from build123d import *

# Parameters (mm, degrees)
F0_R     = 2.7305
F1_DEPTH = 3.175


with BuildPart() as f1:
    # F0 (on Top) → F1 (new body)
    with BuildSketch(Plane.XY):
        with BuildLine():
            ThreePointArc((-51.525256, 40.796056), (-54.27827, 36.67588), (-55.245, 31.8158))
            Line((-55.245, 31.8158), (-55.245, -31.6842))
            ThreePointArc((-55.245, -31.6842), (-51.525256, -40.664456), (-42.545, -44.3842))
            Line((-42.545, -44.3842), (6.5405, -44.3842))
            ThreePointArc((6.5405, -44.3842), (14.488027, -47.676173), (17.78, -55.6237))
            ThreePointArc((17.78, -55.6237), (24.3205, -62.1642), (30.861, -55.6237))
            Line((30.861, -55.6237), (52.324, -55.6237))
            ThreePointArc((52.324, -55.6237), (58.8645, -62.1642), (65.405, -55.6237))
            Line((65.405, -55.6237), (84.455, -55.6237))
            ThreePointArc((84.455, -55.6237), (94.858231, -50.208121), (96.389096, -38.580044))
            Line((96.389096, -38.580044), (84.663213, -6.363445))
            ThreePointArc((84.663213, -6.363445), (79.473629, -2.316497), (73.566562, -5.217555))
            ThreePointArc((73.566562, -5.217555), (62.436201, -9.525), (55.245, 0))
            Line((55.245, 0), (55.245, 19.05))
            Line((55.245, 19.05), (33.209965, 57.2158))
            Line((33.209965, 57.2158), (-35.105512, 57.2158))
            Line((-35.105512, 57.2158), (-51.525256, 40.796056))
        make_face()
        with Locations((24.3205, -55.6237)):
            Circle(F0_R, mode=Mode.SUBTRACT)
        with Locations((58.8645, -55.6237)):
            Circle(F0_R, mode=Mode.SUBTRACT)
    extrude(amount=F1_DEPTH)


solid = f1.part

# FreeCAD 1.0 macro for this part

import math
import FreeCAD as App
import Part
import Sketcher
Q = App.Units.Quantity

doc = App.newDocument("Part")
body = doc.addObject("PartDesign::Body", "Body")

sketch1 = body.newObject("Sketcher::SketchObject", "Sketch")
sketch1.AttachmentSupport = (doc.getObject("XY_Plane"), [""])
sketch1.MapMode = "FlatFace"
sketch1.addGeometry(Part.ArcOfCircle(Part.Circle(App.Vector(-42.5, 31.8, 0), App.Vector(0, 0, 1), 12.7), math.radians(135), math.radians(180)), False)
sketch1.addGeometry(Part.LineSegment(App.Vector(-55.2, 31.8, 0), App.Vector(-55.2, -31.7, 0)), False)
sketch1.addGeometry(Part.ArcOfCircle(Part.Circle(App.Vector(-42.5, -31.7, 0), App.Vector(0, 0, 1), 12.7), math.radians(-180), math.radians(-90)), False)
sketch1.addGeometry(Part.LineSegment(App.Vector(-42.5, -44.4, 0), App.Vector(6.5, -44.4, 0)), False)
sketch1.addGeometry(Part.ArcOfCircle(Part.Circle(App.Vector(6.5, -55.6, 0), App.Vector(0, 0, 1), 11.2), math.radians(0), math.radians(90)), False)
sketch1.addGeometry(Part.ArcOfCircle(Part.Circle(App.Vector(24.3, -55.6, 0), App.Vector(0, 0, 1), 6.5), math.radians(180), math.radians(360)), False)
sketch1.addGeometry(Part.LineSegment(App.Vector(30.9, -55.6, 0), App.Vector(52.3, -55.6, 0)), False)
sketch1.addGeometry(Part.ArcOfCircle(Part.Circle(App.Vector(58.9, -55.6, 0), App.Vector(0, 0, 1), 6.5), math.radians(180), math.radians(360)), False)
sketch1.addGeometry(Part.LineSegment(App.Vector(65.4, -55.6, 0), App.Vector(84.5, -55.6, 0)), False)
sketch1.addGeometry(Part.ArcOfCircle(Part.Circle(App.Vector(84.5, -42.9, 0), App.Vector(0, 0, 1), 12.7), math.radians(-90), math.radians(20)), False)
sketch1.addGeometry(Part.LineSegment(App.Vector(96.4, -38.6, 0), App.Vector(84.7, -6.4, 0)), False)
sketch1.addGeometry(Part.ArcOfCircle(Part.Circle(App.Vector(78.8, -8.5, 0), App.Vector(0, 0, 1), 6.2), math.radians(20), math.radians(148)), False)
sketch1.addGeometry(Part.ArcOfCircle(Part.Circle(App.Vector(65.1, 0, 0), App.Vector(0, 0, 1), 9.9), math.radians(-180), math.radians(-32)), False)
sketch1.addGeometry(Part.LineSegment(App.Vector(55.2, 0, 0), App.Vector(55.2, 19.1, 0)), False)
sketch1.addGeometry(Part.LineSegment(App.Vector(55.2, 19.1, 0), App.Vector(33.2, 57.2, 0)), False)
sketch1.addGeometry(Part.LineSegment(App.Vector(33.2, 57.2, 0), App.Vector(-35.1, 57.2, 0)), False)
sketch1.addGeometry(Part.LineSegment(App.Vector(-35.1, 57.2, 0), App.Vector(-51.5, 40.8, 0)), False)
sketch1.addGeometry(Part.Circle(App.Vector(24.3, -55.6, 0), App.Vector(0, 0, 1), 2.7), False)
sketch1.addGeometry(Part.Circle(App.Vector(58.9, -55.6, 0), App.Vector(0, 0, 1), 2.7), False)
sketch1.addConstraint(Sketcher.Constraint("Tangent", 0, 2, 1, 1))
sketch1.addConstraint(Sketcher.Constraint("Tangent", 1, 2, 2, 1))
sketch1.addConstraint(Sketcher.Constraint("Tangent", 2, 2, 3, 1))
sketch1.addConstraint(Sketcher.Constraint("Tangent", 3, 2, 4, 2))
sketch1.addConstraint(Sketcher.Constraint("Tangent", 4, 1, 5, 1))
sketch1.addConstraint(Sketcher.Constraint("Coincident", 5, 2, 6, 1))
sketch1.addConstraint(Sketcher.Constraint("Coincident", 6, 2, 7, 1))
sketch1.addConstraint(Sketcher.Constraint("Coincident", 7, 2, 8, 1))
sketch1.addConstraint(Sketcher.Constraint("Tangent", 8, 2, 9, 1))
sketch1.addConstraint(Sketcher.Constraint("Tangent", 9, 2, 10, 1))
sketch1.addConstraint(Sketcher.Constraint("Tangent", 10, 2, 11, 1))
sketch1.addConstraint(Sketcher.Constraint("Tangent", 11, 2, 12, 2))
sketch1.addConstraint(Sketcher.Constraint("Tangent", 12, 1, 13, 1))
sketch1.addConstraint(Sketcher.Constraint("Coincident", 13, 2, 14, 1))
sketch1.addConstraint(Sketcher.Constraint("Coincident", 14, 2, 15, 1))
sketch1.addConstraint(Sketcher.Constraint("Coincident", 15, 2, 16, 1))
sketch1.addConstraint(Sketcher.Constraint("Tangent", 16, 2, 0, 1))
sketch1.addConstraint(Sketcher.Constraint("Vertical", 1))
sketch1.addConstraint(Sketcher.Constraint("Horizontal", 3))
sketch1.addConstraint(Sketcher.Constraint("Horizontal", 6))
sketch1.addConstraint(Sketcher.Constraint("Horizontal", 8))
sketch1.addConstraint(Sketcher.Constraint("Vertical", 13))
sketch1.addConstraint(Sketcher.Constraint("Horizontal", 15))
sketch1.addConstraint(Sketcher.Constraint("Coincident", 17, 3, 5, 3))
sketch1.addConstraint(Sketcher.Constraint("Coincident", 18, 3, 7, 3))
sketch1.addConstraint(Sketcher.Constraint("Equal", 5, 7))
sketch1.addConstraint(Sketcher.Constraint("Equal", 2, 9))
sketch1.addConstraint(Sketcher.Constraint("Equal", 17, 18))
sketch1.addConstraint(Sketcher.Constraint("PointOnObject", 12, 3, -1))
sketch1.addConstraint(Sketcher.Constraint("Horizontal", 4, 3, 5, 3))
sketch1.addConstraint(Sketcher.Constraint("Horizontal", 5, 3, 7, 3))
sketch1.addConstraint(Sketcher.Constraint("Horizontal", 4, 1, 5, 2))
sketch1.addConstraint(Sketcher.Constraint("Horizontal", 6, 2, 7, 2))
sketch1.addConstraint(Sketcher.Constraint("Equal", 8, 13))
sketch1.addConstraint(Sketcher.Constraint("Radius", 0, Q("0.4999999 in")))
sketch1.addConstraint(Sketcher.Constraint("Radius", 2, Q("0.5 in")))
sketch1.addConstraint(Sketcher.Constraint("Diameter", 17, Q("0.215 in")))
sketch1.addConstraint(Sketcher.Constraint("DistanceY", 1, 2, 1, 1, Q("2.5 in")))
sketch1.addConstraint(Sketcher.Constraint("Angle", 10, Q("110 deg")))
sketch1.addConstraint(Sketcher.Constraint("Angle", 14, Q("120 deg")))
sketch1.addConstraint(Sketcher.Constraint("Angle", 16, Q("-135 deg")))
sketch1.addConstraint(Sketcher.Constraint("DistanceX", 2, 3, 9, 3, Q("5 in")))
sketch1.addConstraint(Sketcher.Constraint("DistanceY", 0, 3, 14, 2, Q("1 in")))
sketch1.addConstraint(Sketcher.Constraint("DistanceX", 8, 1, 8, 2, Q("0.75 in")))
sketch1.addConstraint(Sketcher.Constraint("DistanceX", -1, 1, 4, 1, Q("0.7 in")))
sketch1.addConstraint(Sketcher.Constraint("Radius", 4, Q("0.4425 in")))
sketch1.addConstraint(Sketcher.Constraint("Radius", 5, Q("0.2575 in")))
sketch1.addConstraint(Sketcher.Constraint("DistanceX", 6, 1, 6, 2, Q("0.845 in")))
sketch1.addConstraint(Sketcher.Constraint("Radius", 12, Q("9.9037 mm")))
sketch1.addConstraint(Sketcher.Constraint("DistanceX", 12, 1, 9, 3, Q("1.15 in")))
sketch1.addConstraint(Sketcher.Constraint("Radius", 11, Q("6.20041 mm")))
sketch1.addConstraint(Sketcher.Constraint("DistanceY", -1, 1, 0, 3, Q("31.815801 mm")))
pad1 = body.newObject("PartDesign::Pad", "Pad")
pad1.Profile = sketch1
pad1.Length = Q("0.125 in")

doc.recompute()
